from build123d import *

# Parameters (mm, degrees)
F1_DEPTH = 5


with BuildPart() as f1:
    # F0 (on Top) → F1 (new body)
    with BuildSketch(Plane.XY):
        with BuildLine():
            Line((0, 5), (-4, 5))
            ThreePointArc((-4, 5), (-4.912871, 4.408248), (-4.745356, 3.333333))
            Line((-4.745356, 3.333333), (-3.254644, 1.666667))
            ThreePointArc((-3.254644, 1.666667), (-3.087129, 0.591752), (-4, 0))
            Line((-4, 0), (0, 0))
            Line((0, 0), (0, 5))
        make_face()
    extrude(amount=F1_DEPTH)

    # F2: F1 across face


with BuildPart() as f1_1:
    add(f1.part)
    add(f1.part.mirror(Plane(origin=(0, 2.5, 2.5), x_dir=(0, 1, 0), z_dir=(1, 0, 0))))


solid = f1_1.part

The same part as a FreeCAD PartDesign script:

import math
import FreeCAD as App
import Part
import Sketcher

V = App.Vector
Q = App.Units.Quantity

doc = App.newDocument("Part")
body = doc.addObject("PartDesign::Body", "Body")

# Sketch on XY plane
sketch1 = body.newObject("Sketcher::SketchObject", "Sketch")
sketch1.AttachmentSupport = (doc.getObject("XY_Plane"), [""])
sketch1.MapMode = "FlatFace"
sketch1.addGeometry(Part.LineSegment(V(0, 5, 0), V(-4, 5, 0)), False)
sketch1.addGeometry(Part.ArcOfCircle(Part.Circle(V(-4, 4, 0), V(0, 0, 1), 1), math.radians(90), math.radians(222)), False)
sketch1.addGeometry(Part.LineSegment(V(-4.7, 3.3, 0), V(-3.3, 1.7, 0)), False)
sketch1.addGeometry(Part.ArcOfCircle(Part.Circle(V(-4, 1, 0), V(0, 0, 1), 1), math.radians(-90), math.radians(42)), False)
sketch1.addGeometry(Part.LineSegment(V(-4, 0, 0), V(0, 0, 0)), False)
sketch1.addGeometry(Part.LineSegment(V(0, 0, 0), V(0, 5, 0)), False)
sketch1.addConstraint(Sketcher.Constraint("Tangent", 0, 2, 1, 1))
sketch1.addConstraint(Sketcher.Constraint("Tangent", 1, 2, 2, 1))
sketch1.addConstraint(Sketcher.Constraint("Tangent", 2, 2, 3, 2))
sketch1.addConstraint(Sketcher.Constraint("Tangent", 3, 1, 4, 1))
sketch1.addConstraint(Sketcher.Constraint("Coincident", 4, 2, 5, 1))
sketch1.addConstraint(Sketcher.Constraint("Coincident", 5, 2, 0, 1))
sketch1.addConstraint(Sketcher.Constraint("Horizontal", 0))
sketch1.addConstraint(Sketcher.Constraint("Horizontal", 4))
sketch1.addConstraint(Sketcher.Constraint("Vertical", 5))
sketch1.addConstraint(Sketcher.Constraint("Coincident", 4, 2, -1, 1))
sketch1.addConstraint(Sketcher.Constraint("Equal", 1, 3))
sketch1.addConstraint(Sketcher.Constraint("Vertical", 1, 3, 3, 3))
sketch1.addConstraint(Sketcher.Constraint("Radius", 1, Q("1 mm")))
sketch1.addConstraint(Sketcher.Constraint("DistanceX", 0, 2, 0, 1, Q("4 mm")))
sketch1.addConstraint(Sketcher.Constraint("DistanceY", 5, 1, 5, 2, Q("5 mm")))
pad1 = body.newObject("PartDesign::Pad", "Pad")
pad1.Profile = sketch1
pad1.Length = 5
body2 = doc.addObject("PartDesign::Body", "Body001")
doc.recompute()

body2.BaseFeature = body
doc.recompute()

mirroring = doc.addObject("Part::Mirroring", "Mirroring")
mirroring.Source = body
mirroring.Base = V(0, 2.5, 2.5)
mirroring.Normal = V(1, 0, 0)
body3 = doc.addObject("PartDesign::Body", "Body002")
body3.BaseFeature = mirroring
boolean = body2.newObject("PartDesign::Boolean", "Boolean")
boolean.Type = "Fuse"
boolean.addObjects([body3])
doc.recompute()
mirroring.Visibility = False

doc.recompute()
